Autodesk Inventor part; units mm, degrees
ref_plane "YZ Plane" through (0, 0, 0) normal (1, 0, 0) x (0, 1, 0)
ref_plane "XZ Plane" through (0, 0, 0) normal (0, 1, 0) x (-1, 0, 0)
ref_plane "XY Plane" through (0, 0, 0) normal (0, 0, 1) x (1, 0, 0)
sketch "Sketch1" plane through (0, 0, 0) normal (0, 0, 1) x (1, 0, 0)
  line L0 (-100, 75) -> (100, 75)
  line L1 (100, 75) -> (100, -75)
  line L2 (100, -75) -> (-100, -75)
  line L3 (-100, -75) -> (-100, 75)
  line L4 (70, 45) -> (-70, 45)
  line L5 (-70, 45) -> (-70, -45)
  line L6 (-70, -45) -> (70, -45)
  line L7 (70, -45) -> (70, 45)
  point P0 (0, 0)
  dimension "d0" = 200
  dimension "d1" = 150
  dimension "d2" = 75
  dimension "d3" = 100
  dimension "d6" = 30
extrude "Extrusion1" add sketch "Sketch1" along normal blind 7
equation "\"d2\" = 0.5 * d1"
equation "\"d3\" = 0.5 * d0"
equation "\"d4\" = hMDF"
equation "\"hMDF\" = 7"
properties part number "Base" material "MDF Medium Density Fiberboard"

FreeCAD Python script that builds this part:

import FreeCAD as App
import Part
import Sketcher
Q = App.Units.Quantity


def add_polygon(sketch, points):
    """Adds a closed chain of lines whose ends are joined by coincident constraints."""
    first, n = sketch.GeometryCount, len(points)
    for a, b in zip(points, points[1:] + points[:1]):
        sketch.addGeometry(Part.LineSegment(App.Vector(*a, 0), App.Vector(*b, 0)), False)
    for i in range(n):
        sketch.addConstraint(Sketcher.Constraint("Coincident", first + i, 2, first + (i + 1) % n, 1))

doc = App.newDocument("Part")
body = doc.addObject("PartDesign::Body", "Body")

# Sketch on XY plane
sketch1 = doc.addObject("Sketcher::SketchObject", "Sketch")
body.addObject(sketch1)
sketch1.AttachmentSupport = (doc.XY_Plane, [""])
sketch1.MapMode = "FlatFace"
add_polygon(sketch1, [(100, 75), (-100, 75), (-100, -75), (100, -75)])  # lines 0-3
add_polygon(sketch1, [(-70, 45), (70, 45), (70, -45), (-70, -45)])  # lines 4-7
sketch1.addConstraint(Sketcher.Constraint("Horizontal", 0))
sketch1.addConstraint(Sketcher.Constraint("Vertical", 1))
sketch1.addConstraint(Sketcher.Constraint("Horizontal", 2))
sketch1.addConstraint(Sketcher.Constraint("Vertical", 3))
sketch1.addConstraint(Sketcher.Constraint("Horizontal", 4))
sketch1.addConstraint(Sketcher.Constraint("Vertical", 5))
sketch1.addConstraint(Sketcher.Constraint("Horizontal", 6))
sketch1.addConstraint(Sketcher.Constraint("Vertical", 7))
sketch1.addConstraint(Sketcher.Constraint("Symmetric", 0, 2, 2, 2, -1, 1))
sketch1.addConstraint(Sketcher.Constraint("Symmetric", 4, 2, 6, 2, -1, 1))
sketch1.addConstraint(Sketcher.Constraint("DistanceX", 0, 2, 0, 1, Q("200 mm")))
sketch1.addConstraint(Sketcher.Constraint("DistanceY", 1, 2, 1, 1, Q("150 mm")))
sketch1.addConstraint(Sketcher.Constraint("DistanceX", 4, 2, 3, 2, Q("30 mm")))
sketch1.addConstraint(Sketcher.Constraint("DistanceY", 4, 2, 3, 2, Q("30 mm")))
pad1 = doc.addObject("PartDesign::Pad", "Pad")
body.addObject(pad1)
pad1.Profile = sketch1
pad1.Length = 7

doc.recompute()
